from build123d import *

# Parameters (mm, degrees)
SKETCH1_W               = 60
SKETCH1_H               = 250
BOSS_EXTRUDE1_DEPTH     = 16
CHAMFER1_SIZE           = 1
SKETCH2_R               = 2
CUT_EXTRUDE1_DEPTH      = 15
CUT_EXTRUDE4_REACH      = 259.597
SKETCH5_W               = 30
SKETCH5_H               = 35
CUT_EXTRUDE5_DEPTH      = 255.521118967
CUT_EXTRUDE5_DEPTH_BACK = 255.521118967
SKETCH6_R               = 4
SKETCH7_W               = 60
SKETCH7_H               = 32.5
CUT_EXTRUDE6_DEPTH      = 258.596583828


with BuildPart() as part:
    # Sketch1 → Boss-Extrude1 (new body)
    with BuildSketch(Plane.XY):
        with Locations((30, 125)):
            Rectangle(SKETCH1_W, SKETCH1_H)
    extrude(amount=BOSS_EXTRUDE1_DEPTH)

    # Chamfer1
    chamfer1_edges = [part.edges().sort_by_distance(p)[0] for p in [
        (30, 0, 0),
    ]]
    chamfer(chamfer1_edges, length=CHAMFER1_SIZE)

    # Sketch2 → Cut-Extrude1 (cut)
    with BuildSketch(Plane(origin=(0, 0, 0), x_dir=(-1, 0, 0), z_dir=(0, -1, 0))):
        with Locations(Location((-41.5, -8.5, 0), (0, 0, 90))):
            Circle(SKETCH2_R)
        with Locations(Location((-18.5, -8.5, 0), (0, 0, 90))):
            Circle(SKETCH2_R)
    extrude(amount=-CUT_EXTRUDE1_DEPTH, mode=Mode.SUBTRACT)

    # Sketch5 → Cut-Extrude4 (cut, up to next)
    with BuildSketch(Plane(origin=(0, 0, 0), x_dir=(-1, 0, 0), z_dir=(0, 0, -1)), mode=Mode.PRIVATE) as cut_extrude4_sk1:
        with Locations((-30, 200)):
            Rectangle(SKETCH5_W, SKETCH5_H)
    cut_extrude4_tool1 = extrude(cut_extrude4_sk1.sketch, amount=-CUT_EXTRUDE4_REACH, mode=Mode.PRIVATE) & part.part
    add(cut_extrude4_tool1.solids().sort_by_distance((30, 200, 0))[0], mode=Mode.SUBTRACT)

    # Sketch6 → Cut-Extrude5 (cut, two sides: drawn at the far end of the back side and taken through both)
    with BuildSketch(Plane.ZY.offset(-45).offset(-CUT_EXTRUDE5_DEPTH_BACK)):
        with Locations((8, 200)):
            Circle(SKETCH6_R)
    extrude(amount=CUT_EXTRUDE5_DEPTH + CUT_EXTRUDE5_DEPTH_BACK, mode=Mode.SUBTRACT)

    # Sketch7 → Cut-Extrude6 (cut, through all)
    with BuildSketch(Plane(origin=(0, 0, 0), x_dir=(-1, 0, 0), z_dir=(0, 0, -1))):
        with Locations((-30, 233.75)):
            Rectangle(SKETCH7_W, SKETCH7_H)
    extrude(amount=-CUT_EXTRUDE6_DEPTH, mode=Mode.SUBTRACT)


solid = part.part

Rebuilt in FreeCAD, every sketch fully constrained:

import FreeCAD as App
import Part
import Sketcher

V = App.Vector


def edges_at(feature, points):
    """Names of the edges that pass closest to the given points."""
    edges = feature.Shape.Edges
    near = lambda p: min(range(len(edges)), key=lambda i: edges[i].distToShape(Part.Vertex(*p))[0])
    return sorted({f"Edge{near(p) + 1}" for p in points})

doc = App.newDocument("Part")
params = doc.addObject("Spreadsheet::Sheet", "Params")
for row, (alias, value) in enumerate([
    ("sketch1_width", "60 mm"),
    ("sketch1_height", "250 mm"),
    ("pad1_length", "16 mm"),
    ("chamfer_size", "1 mm"),
    ("sketch2_diameter", "4 mm"),
    ("pocket1_length", "15 mm"),
    ("sketch3_width", "30 mm"),
    ("sketch3_height", "35 mm"),
    ("sketch4_diameter", "8 mm"),
    ("sketch5_width", "60 mm"),
    ("sketch5_height", "32.5 mm"),
], start=1):
    params.set(f"A{row}", alias)
    params.set(f"B{row}", "=" + value)
    params.setAlias(f"B{row}", alias)

body = doc.addObject("PartDesign::Body", "Body")

# Sketch on XY plane
sketch1 = body.newObject("Sketcher::SketchObject", "Sketch")
sketch1.AttachmentSupport = (doc.getObject("XY_Plane"), [""])
sketch1.MapMode = "FlatFace"
sketch1.addGeometry([
    Part.LineSegment(V(0, 250, 0), V(0, 0, 0)),
    Part.LineSegment(V(0, 0, 0), V(60, 0, 0)),
    Part.LineSegment(V(60, 0, 0), V(60, 250, 0)),
    Part.LineSegment(V(60, 250, 0), V(0, 250, 0)),
], False)
sketch1.addConstraint([
    Sketcher.Constraint("Coincident", 0, 2, 1, 1),
    Sketcher.Constraint("Coincident", 1, 2, 2, 1),
    Sketcher.Constraint("Coincident", 2, 2, 3, 1),
    Sketcher.Constraint("Coincident", 3, 2, 0, 1),
    Sketcher.Constraint("Vertical", 0),
    Sketcher.Constraint("Horizontal", 1),
    Sketcher.Constraint("Vertical", 2),
    Sketcher.Constraint("Horizontal", 3),
    Sketcher.Constraint("Coincident", 0, 2, -1, 1),
    Sketcher.Constraint("DistanceX", 1, 1, 1, 2, 60.0),
    Sketcher.Constraint("DistanceY", 0, 2, 0, 1, 250.0),
])
sketch1.setExpression("Constraints[9]", "Params.sketch1_width")
sketch1.setExpression("Constraints[10]", "Params.sketch1_height")
pad1 = body.newObject("PartDesign::Pad", "Pad")
pad1.Profile = sketch1
pad1.setExpression("Length", "Params.pad1_length")
doc.recompute()

chamfer = body.newObject("PartDesign::Chamfer", "Chamfer")
chamfer.Base = (pad1, edges_at(pad1, [(30, 0, 0)]))
chamfer.setExpression("Size", "Params.chamfer_size")

# Sketch on XZ plane
sketch2 = body.newObject("Sketcher::SketchObject", "Sketch001")
sketch2.AttachmentSupport = (doc.getObject("XZ_Plane"), [""])
sketch2.MapMode = "FlatFace"
sketch2.addGeometry([
    Part.Circle(V(41.5, 8.5, 0), V(0, 0, 1), 2),
    Part.Circle(V(18.5, 8.5, 0), V(0, 0, 1), 2),
], False)
sketch2.addConstraint([
    Sketcher.Constraint("Equal", 0, 1),
    Sketcher.Constraint("Horizontal", 0, 3, 1, 3),
    Sketcher.Constraint("Diameter", 0, 4.0),
    Sketcher.Constraint("DistanceX", 1, 3, 0, 3, 23.0),
    Sketcher.Constraint("DistanceX", -1, 1, 0, 3, 41.5),
    Sketcher.Constraint("DistanceY", -1, 1, 0, 3, 8.5),
])
sketch2.setExpression("Constraints[2]", "Params.sketch2_diameter")
pocket1 = body.newObject("PartDesign::Pocket", "Pocket")
pocket1.Profile = sketch2
pocket1.setExpression("Length", "Params.pocket1_length")

# Sketch on XY plane
sketch3 = body.newObject("Sketcher::SketchObject", "Sketch002")
sketch3.AttachmentSupport = (doc.getObject("XY_Plane"), [""])
sketch3.MapMode = "FlatFace"
sketch3.addGeometry([
    Part.LineSegment(V(45, 218, 0), V(45, 182, 0)),
    Part.LineSegment(V(45, 182, 0), V(15, 182, 0)),
    Part.LineSegment(V(15, 182, 0), V(15, 218, 0)),
    Part.LineSegment(V(15, 218, 0), V(45, 218, 0)),
], False)
sketch3.addConstraint([
    Sketcher.Constraint("Coincident", 0, 2, 1, 1),
    Sketcher.Constraint("Coincident", 1, 2, 2, 1),
    Sketcher.Constraint("Coincident", 2, 2, 3, 1),
    Sketcher.Constraint("Coincident", 3, 2, 0, 1),
    Sketcher.Constraint("Vertical", 0),
    Sketcher.Constraint("Horizontal", 1),
    Sketcher.Constraint("Vertical", 2),
    Sketcher.Constraint("Horizontal", 3),
    Sketcher.Constraint("DistanceX", 1, 2, 1, 1, 30.0),
    Sketcher.Constraint("DistanceY", 0, 2, 0, 1, 35.0),
    Sketcher.Constraint("DistanceX", -1, 1, 0, 2, 45.0),
    Sketcher.Constraint("DistanceY", -1, 1, 0, 2, 182.5),
])
sketch3.setExpression("Constraints[8]", "Params.sketch3_width")
sketch3.setExpression("Constraints[9]", "Params.sketch3_height")
pocket2 = body.newObject("PartDesign::Pocket", "Pocket001")
pocket2.Profile = sketch3
pocket2.Type = "UpToFirst"
pocket2.Reversed = True

# Sketch on YZ plane
sketch4 = body.newObject("Sketcher::SketchObject", "Sketch003")
sketch4.AttachmentSupport = (doc.getObject("YZ_Plane"), [""])
sketch4.MapMode = "FlatFace"
sketch4.AttachmentOffset = App.Placement(V(0, 0, 45), App.Rotation())
sketch4.addGeometry(Part.Circle(V(200, 8, 0), V(0, 0, 1), 4), False)
sketch4.addConstraint([
    Sketcher.Constraint("Diameter", 0, 8.0),
    Sketcher.Constraint("DistanceX", -1, 1, 0, 3, 200.0),
    Sketcher.Constraint("DistanceY", -1, 1, 0, 3, 8.0),
])
sketch4.setExpression("Constraints[0]", "Params.sketch4_diameter")
pocket3 = body.newObject("PartDesign::Pocket", "Pocket002")
pocket3.Profile = sketch4
pocket3.Type = "ThroughAll"
pocket3.Midplane = True

# Sketch on XY plane
sketch5 = body.newObject("Sketcher::SketchObject", "Sketch004")
sketch5.AttachmentSupport = (doc.getObject("XY_Plane"), [""])
sketch5.MapMode = "FlatFace"
sketch5.addGeometry([
    Part.LineSegment(V(60, 250, 0), V(60, 218, 0)),
    Part.LineSegment(V(60, 218, 0), V(0, 218, 0)),
    Part.LineSegment(V(0, 218, 0), V(0, 250, 0)),
    Part.LineSegment(V(0, 250, 0), V(60, 250, 0)),
], False)
sketch5.addConstraint([
    Sketcher.Constraint("Coincident", 0, 2, 1, 1),
    Sketcher.Constraint("Coincident", 1, 2, 2, 1),
    Sketcher.Constraint("Coincident", 2, 2, 3, 1),
    Sketcher.Constraint("Coincident", 3, 2, 0, 1),
    Sketcher.Constraint("Vertical", 0),
    Sketcher.Constraint("Horizontal", 1),
    Sketcher.Constraint("Vertical", 2),
    Sketcher.Constraint("Horizontal", 3),
    Sketcher.Constraint("PointOnObject", 1, 2, -2),
    Sketcher.Constraint("DistanceX", 1, 2, 1, 1, 60.0),
    Sketcher.Constraint("DistanceY", 0, 2, 0, 1, 32.5),
    Sketcher.Constraint("DistanceY", -1, 1, 2, 2, 250.0),
])
sketch5.setExpression("Constraints[9]", "Params.sketch5_width")
sketch5.setExpression("Constraints[10]", "Params.sketch5_height")
pocket4 = body.newObject("PartDesign::Pocket", "Pocket003")
pocket4.Profile = sketch5
pocket4.Type = "ThroughAll"
pocket4.Reversed = True

doc.recompute()
